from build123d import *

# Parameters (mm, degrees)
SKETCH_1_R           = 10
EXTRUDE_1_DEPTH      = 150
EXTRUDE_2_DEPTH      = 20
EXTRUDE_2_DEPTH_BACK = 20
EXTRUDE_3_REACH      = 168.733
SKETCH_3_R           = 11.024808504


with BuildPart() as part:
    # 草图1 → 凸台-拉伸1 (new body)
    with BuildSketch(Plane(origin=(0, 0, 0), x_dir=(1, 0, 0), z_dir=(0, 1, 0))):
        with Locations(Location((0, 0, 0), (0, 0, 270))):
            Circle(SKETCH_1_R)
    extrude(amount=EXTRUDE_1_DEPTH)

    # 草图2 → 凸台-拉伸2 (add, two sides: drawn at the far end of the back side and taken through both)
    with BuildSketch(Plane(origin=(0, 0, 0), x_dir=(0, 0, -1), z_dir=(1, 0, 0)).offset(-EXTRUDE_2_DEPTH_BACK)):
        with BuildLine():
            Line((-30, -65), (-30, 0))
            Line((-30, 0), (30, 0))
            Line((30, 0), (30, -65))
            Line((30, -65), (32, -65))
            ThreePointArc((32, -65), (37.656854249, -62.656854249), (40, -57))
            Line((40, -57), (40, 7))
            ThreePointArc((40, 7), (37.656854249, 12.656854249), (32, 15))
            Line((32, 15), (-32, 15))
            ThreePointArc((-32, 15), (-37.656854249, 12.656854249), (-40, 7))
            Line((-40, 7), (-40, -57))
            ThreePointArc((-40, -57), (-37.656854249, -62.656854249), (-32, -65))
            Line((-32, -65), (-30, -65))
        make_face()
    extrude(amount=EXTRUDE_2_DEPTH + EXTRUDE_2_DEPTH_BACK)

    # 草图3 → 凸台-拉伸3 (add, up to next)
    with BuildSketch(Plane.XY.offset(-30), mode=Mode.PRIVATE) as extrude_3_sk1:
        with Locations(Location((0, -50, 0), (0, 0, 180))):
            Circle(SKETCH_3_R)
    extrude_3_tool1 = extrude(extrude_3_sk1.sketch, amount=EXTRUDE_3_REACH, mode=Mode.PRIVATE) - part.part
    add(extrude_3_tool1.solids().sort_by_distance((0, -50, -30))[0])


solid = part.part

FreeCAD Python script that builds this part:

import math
import FreeCAD as App
import Part
import Sketcher

V = App.Vector

doc = App.newDocument("Part")
body = doc.addObject("PartDesign::Body", "Body")

# Sketch on XZ plane
sketch1 = body.newObject("Sketcher::SketchObject", "Sketch")
sketch1.AttachmentSupport = (doc.getObject("XZ_Plane"), [""])
sketch1.MapMode = "FlatFace"
sketch1.addGeometry(Part.Circle(V(0, 0, 0), V(0, 0, 1), 10), False)
sketch1.addConstraint([
    Sketcher.Constraint("Coincident", 0, 3, -1, 1),
    Sketcher.Constraint("Diameter", 0, 20.0),
])
pad1 = body.newObject("PartDesign::Pad", "Pad")
pad1.Profile = sketch1
pad1.Length = 150
pad1.Reversed = True

# Sketch on YZ plane
sketch2 = body.newObject("Sketcher::SketchObject", "Sketch001")
sketch2.AttachmentSupport = (doc.getObject("YZ_Plane"), [""])
sketch2.MapMode = "FlatFace"
sketch2.addGeometry([
    Part.LineSegment(V(-65, 30, 0), V(0, 30, 0)),  # 0
    Part.LineSegment(V(0, 30, 0), V(0, -30, 0)),  # 1
    Part.LineSegment(V(0, -30, 0), V(-65, -30, 0)),  # 2
    Part.LineSegment(V(-65, -30, 0), V(-65, -32, 0)),  # 3
    Part.ArcOfCircle(Part.Circle(V(-57, -32, 0), V(0, 0, 1), 8), math.radians(-180), math.radians(-90)),  # 4
    Part.LineSegment(V(-57, -40, 0), V(7, -40, 0)),  # 5
    Part.ArcOfCircle(Part.Circle(V(7, -32, 0), V(0, 0, 1), 8), math.radians(-90), math.radians(0)),  # 6
    Part.LineSegment(V(15, -32, 0), V(15, 32, 0)),  # 7
    Part.ArcOfCircle(Part.Circle(V(7, 32, 0), V(0, 0, 1), 8), math.radians(0), math.radians(90)),  # 8
    Part.LineSegment(V(7, 40, 0), V(-57, 40, 0)),  # 9
    Part.ArcOfCircle(Part.Circle(V(-57, 32, 0), V(0, 0, 1), 8), math.radians(90), math.radians(180)),  # 10
    Part.LineSegment(V(-65, 32, 0), V(-65, 30, 0)),  # 11
], False)
sketch2.addConstraint([
    Sketcher.Constraint("Coincident", 0, 2, 1, 1),
    Sketcher.Constraint("Coincident", 1, 2, 2, 1),
    Sketcher.Constraint("Coincident", 2, 2, 3, 1),
    Sketcher.Constraint("Tangent", 3, 2, 4, 1),
    Sketcher.Constraint("Tangent", 4, 2, 5, 1),
    Sketcher.Constraint("Tangent", 5, 2, 6, 1),
    Sketcher.Constraint("Tangent", 6, 2, 7, 1),
    Sketcher.Constraint("Tangent", 7, 2, 8, 1),
    Sketcher.Constraint("Tangent", 8, 2, 9, 1),
    Sketcher.Constraint("Tangent", 9, 2, 10, 1),
    Sketcher.Constraint("Tangent", 10, 2, 11, 1),
    Sketcher.Constraint("Coincident", 11, 2, 0, 1),
    Sketcher.Constraint("Horizontal", 0),
    Sketcher.Constraint("Vertical", 1),
    Sketcher.Constraint("Horizontal", 2),
    Sketcher.Constraint("Vertical", 3),
    Sketcher.Constraint("Horizontal", 5),
    Sketcher.Constraint("Vertical", 7),
    Sketcher.Constraint("Horizontal", 9),
    Sketcher.Constraint("Vertical", 11),
    Sketcher.Constraint("Equal", 4, 6),
    Sketcher.Constraint("Equal", 6, 8),
    Sketcher.Constraint("Equal", 8, 10),
    Sketcher.Constraint("Symmetric", 0, 2, 1, 2, -1, 1),
    Sketcher.Constraint("Symmetric", 4, 3, 10, 3, -1),
    Sketcher.Constraint("Equal", 9, 7),
    Sketcher.Constraint("Radius", 4, 8.0),
    Sketcher.Constraint("DistanceX", 0, 1, 0, 2, 65.0),
    Sketcher.Constraint("DistanceX", 5, 1, 5, 2, 64.0),
    Sketcher.Constraint("DistanceY", 1, 2, 1, 1, 60.0),
])
pad2 = body.newObject("PartDesign::Pad", "Pad001")
pad2.Profile = sketch2
pad2.Type = "TwoLengths"
pad2.Length = 20
pad2.Length2 = 20

# Sketch on XY plane
sketch3 = body.newObject("Sketcher::SketchObject", "Sketch002")
sketch3.AttachmentSupport = (doc.getObject("XY_Plane"), [""])
sketch3.MapMode = "FlatFace"
sketch3.AttachmentOffset = App.Placement(V(0, 0, -30), App.Rotation())
sketch3.addGeometry(Part.Circle(V(0, -50, 0), V(0, 0, 1), 11.024809), False)
sketch3.addConstraint([
    Sketcher.Constraint("PointOnObject", 0, 3, -2),
    Sketcher.Constraint("DistanceY", 0, 3, -1, 1, 50.0),
    Sketcher.Constraint("Diameter", 0, 22.049617),
])
pad3 = body.newObject("PartDesign::Pad", "Pad002")
pad3.Profile = sketch3
pad3.Type = "UpToFirst"

doc.recompute()
